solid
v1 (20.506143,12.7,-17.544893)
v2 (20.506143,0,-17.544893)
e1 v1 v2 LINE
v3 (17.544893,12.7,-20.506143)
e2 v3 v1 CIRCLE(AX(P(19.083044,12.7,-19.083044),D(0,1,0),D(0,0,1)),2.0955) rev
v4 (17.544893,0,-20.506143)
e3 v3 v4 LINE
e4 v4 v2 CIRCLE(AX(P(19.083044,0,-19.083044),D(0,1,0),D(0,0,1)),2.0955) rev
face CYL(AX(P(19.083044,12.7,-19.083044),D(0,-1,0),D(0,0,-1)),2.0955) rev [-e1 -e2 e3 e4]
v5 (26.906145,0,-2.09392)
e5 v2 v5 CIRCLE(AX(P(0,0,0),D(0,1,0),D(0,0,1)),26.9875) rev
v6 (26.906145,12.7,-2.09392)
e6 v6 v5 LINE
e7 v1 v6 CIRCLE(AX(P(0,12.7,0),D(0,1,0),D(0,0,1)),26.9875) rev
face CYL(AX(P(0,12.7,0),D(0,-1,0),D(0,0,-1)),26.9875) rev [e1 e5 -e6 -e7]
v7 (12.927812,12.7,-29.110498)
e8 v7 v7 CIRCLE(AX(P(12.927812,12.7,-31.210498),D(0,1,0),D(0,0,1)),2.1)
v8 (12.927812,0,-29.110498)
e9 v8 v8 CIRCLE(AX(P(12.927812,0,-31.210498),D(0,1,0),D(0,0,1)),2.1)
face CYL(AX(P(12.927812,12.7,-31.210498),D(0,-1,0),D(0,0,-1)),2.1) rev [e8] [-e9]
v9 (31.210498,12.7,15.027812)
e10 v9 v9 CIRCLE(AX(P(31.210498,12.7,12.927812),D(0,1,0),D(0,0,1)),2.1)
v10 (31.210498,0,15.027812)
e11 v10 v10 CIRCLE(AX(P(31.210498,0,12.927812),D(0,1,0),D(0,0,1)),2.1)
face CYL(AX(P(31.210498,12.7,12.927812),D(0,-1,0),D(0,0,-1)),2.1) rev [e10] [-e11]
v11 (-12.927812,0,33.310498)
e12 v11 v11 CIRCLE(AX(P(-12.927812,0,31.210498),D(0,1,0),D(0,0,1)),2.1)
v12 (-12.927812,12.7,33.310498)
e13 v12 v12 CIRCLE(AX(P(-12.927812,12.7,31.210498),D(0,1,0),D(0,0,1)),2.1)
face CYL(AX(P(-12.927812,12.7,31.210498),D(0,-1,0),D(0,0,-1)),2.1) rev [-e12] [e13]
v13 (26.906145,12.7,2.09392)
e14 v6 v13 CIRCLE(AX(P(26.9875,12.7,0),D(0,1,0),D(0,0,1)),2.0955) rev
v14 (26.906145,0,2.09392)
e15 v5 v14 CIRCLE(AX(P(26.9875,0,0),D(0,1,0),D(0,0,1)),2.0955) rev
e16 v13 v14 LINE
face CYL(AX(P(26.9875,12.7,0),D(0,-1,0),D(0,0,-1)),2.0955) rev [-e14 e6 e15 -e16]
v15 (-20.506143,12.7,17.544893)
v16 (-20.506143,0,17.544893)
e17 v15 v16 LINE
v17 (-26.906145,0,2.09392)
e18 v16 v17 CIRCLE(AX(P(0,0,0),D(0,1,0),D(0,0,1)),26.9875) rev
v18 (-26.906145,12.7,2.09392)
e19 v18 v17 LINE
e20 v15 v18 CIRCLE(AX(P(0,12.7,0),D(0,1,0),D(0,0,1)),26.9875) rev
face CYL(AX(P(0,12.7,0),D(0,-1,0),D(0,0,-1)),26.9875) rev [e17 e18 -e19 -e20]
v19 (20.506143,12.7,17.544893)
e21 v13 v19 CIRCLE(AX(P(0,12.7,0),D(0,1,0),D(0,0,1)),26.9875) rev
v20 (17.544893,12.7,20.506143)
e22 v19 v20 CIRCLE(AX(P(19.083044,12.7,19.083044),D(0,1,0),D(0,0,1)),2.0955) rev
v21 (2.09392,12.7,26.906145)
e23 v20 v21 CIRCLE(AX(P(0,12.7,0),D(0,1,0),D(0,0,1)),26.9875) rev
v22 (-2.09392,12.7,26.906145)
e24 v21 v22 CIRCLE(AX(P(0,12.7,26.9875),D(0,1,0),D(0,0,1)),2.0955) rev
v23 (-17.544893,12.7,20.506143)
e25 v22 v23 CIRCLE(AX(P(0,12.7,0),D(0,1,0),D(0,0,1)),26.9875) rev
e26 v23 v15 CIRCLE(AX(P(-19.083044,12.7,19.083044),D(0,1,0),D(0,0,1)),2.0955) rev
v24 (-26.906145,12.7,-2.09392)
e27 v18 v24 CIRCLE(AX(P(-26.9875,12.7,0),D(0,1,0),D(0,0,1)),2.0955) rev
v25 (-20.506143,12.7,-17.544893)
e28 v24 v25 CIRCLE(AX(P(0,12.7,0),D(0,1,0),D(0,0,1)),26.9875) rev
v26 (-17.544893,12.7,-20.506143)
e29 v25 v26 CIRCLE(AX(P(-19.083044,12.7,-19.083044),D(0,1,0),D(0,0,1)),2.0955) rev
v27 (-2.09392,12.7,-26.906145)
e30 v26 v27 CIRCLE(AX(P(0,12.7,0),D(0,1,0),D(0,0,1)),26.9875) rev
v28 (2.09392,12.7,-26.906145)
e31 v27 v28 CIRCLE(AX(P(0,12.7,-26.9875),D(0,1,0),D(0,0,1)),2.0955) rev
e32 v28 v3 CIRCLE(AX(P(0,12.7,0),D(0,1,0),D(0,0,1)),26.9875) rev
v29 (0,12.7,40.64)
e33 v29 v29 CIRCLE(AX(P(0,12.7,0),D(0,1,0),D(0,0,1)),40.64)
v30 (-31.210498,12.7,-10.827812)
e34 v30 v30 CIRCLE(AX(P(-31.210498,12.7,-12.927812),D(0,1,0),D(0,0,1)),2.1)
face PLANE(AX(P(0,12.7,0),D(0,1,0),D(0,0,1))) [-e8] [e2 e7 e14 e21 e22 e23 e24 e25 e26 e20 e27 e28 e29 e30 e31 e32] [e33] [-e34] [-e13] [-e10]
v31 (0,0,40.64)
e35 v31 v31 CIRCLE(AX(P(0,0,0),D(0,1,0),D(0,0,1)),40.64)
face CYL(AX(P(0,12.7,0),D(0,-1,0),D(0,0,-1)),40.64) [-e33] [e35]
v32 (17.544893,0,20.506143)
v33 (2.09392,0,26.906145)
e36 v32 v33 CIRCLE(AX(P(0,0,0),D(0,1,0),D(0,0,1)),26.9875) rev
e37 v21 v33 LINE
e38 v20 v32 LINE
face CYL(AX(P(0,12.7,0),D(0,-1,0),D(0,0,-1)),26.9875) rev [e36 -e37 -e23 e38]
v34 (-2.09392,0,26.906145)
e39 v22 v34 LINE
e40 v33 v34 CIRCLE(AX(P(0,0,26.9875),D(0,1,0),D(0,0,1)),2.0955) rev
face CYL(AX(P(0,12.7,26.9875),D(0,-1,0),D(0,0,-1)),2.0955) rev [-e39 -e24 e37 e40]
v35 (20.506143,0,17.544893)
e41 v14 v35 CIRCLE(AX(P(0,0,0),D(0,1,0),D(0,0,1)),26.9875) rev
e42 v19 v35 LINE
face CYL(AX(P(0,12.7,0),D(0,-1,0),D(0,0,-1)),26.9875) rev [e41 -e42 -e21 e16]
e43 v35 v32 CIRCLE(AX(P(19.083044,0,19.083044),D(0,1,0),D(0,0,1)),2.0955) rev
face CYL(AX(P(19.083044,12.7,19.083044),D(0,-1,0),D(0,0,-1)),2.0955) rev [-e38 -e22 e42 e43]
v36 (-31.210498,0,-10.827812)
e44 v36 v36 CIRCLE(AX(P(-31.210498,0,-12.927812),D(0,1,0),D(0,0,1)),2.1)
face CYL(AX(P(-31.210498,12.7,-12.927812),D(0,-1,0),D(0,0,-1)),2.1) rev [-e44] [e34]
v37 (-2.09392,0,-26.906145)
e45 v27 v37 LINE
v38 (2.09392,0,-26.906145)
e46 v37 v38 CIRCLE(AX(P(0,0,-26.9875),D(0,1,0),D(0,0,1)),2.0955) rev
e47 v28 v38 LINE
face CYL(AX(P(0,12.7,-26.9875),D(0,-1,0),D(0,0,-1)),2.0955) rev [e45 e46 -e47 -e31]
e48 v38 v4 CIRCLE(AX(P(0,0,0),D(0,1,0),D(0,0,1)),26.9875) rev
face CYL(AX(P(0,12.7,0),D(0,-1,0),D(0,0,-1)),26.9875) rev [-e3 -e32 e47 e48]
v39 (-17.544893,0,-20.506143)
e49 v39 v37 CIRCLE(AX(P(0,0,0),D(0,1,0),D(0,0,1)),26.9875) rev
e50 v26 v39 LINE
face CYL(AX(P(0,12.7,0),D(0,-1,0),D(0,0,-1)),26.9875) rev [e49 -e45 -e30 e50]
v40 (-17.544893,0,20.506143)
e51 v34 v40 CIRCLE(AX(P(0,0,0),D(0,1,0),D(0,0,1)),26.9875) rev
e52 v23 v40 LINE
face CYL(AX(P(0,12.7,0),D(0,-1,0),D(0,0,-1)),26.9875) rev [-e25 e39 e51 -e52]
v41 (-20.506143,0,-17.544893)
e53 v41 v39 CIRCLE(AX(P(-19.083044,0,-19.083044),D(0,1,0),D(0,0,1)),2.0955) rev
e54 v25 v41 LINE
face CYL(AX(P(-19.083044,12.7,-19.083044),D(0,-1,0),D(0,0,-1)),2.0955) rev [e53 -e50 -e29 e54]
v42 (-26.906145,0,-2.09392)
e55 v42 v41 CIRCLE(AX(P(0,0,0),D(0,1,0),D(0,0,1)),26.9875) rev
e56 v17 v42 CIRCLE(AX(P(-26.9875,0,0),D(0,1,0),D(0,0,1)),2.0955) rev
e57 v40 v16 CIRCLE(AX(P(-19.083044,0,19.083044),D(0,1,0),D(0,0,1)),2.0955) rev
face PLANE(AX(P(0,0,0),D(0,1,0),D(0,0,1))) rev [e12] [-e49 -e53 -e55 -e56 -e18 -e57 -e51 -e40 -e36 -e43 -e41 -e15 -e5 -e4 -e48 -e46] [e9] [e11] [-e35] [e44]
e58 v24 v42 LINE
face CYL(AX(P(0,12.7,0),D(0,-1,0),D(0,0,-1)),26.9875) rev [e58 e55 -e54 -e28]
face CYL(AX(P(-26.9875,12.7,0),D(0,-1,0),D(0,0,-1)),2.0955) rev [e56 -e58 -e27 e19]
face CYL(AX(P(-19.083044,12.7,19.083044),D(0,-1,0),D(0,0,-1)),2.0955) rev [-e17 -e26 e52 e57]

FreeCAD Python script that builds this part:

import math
import FreeCAD as App
import Part
import Sketcher
Q = App.Units.Quantity

doc = App.newDocument("Part")
body = doc.addObject("PartDesign::Body", "Body")

# Sketch on XZ plane
sketch1 = doc.addObject("Sketcher::SketchObject", "Sketch")
body.addObject(sketch1)
sketch1.AttachmentSupport = (doc.XZ_Plane, [""])
sketch1.MapMode = "FlatFace"
sketch1.addGeometry([
    Part.Circle(App.Vector(0, 0, 0), App.Vector(0, 0, 1), 40.6),  # 0
    Part.Circle(App.Vector(-31.2, -12.9, 0), App.Vector(0, 0, 1), 2.1),  # 1
    Part.Circle(App.Vector(-12.9, 31.2, 0), App.Vector(0, 0, 1), 2.1),  # 2
    Part.Circle(App.Vector(12.9, -31.2, 0), App.Vector(0, 0, 1), 2.1),  # 3
    Part.ArcOfCircle(Part.Circle(App.Vector(0, 0, 0), App.Vector(0, 0, 1), 27), math.radians(-176), math.radians(-139)),  # 4
    Part.ArcOfCircle(Part.Circle(App.Vector(-19.1, -19.1, 0), App.Vector(0, 0, 1), 2.1), math.radians(133), math.radians(317)),  # 5
    Part.ArcOfCircle(Part.Circle(App.Vector(0, 0, 0), App.Vector(0, 0, 1), 27), math.radians(-131), math.radians(-94)),  # 6
    Part.ArcOfCircle(Part.Circle(App.Vector(0, -27, 0), App.Vector(0, 0, 1), 2.1), math.radians(178), math.radians(362)),  # 7
    Part.ArcOfCircle(Part.Circle(App.Vector(0, 0, 0), App.Vector(0, 0, 1), 27), math.radians(-86), math.radians(-49)),  # 8
    Part.ArcOfCircle(Part.Circle(App.Vector(19.1, -19.1, 0), App.Vector(0, 0, 1), 2.1), math.radians(-137), math.radians(47)),  # 9
    Part.ArcOfCircle(Part.Circle(App.Vector(0, 0, 0), App.Vector(0, 0, 1), 27), math.radians(-41), math.radians(-4)),  # 10
    Part.ArcOfCircle(Part.Circle(App.Vector(27, 0, 0), App.Vector(0, 0, 1), 2.1), math.radians(-92), math.radians(92)),  # 11
    Part.ArcOfCircle(Part.Circle(App.Vector(0, 0, 0), App.Vector(0, 0, 1), 27), math.radians(4), math.radians(41)),  # 12
    Part.ArcOfCircle(Part.Circle(App.Vector(19.1, 19.1, 0), App.Vector(0, 0, 1), 2.1), math.radians(-47), math.radians(137)),  # 13
    Part.ArcOfCircle(Part.Circle(App.Vector(0, 0, 0), App.Vector(0, 0, 1), 27), math.radians(49), math.radians(86)),  # 14
    Part.ArcOfCircle(Part.Circle(App.Vector(0, 27, 0), App.Vector(0, 0, 1), 2.1), math.radians(-2), math.radians(182)),  # 15
    Part.ArcOfCircle(Part.Circle(App.Vector(0, 0, 0), App.Vector(0, 0, 1), 27), math.radians(94), math.radians(131)),  # 16
    Part.ArcOfCircle(Part.Circle(App.Vector(-19.1, 19.1, 0), App.Vector(0, 0, 1), 2.1), math.radians(43), math.radians(227)),  # 17
    Part.ArcOfCircle(Part.Circle(App.Vector(0, 0, 0), App.Vector(0, 0, 1), 27), math.radians(139), math.radians(176)),  # 18
    Part.ArcOfCircle(Part.Circle(App.Vector(-27, 0, 0), App.Vector(0, 0, 1), 2.1), math.radians(88), math.radians(272)),  # 19
    Part.Circle(App.Vector(31.2, 12.9, 0), App.Vector(0, 0, 1), 2.1),  # 20
], False)
sketch1.addConstraint([
    Sketcher.Constraint("Coincident", 4, 2, 5, 1),
    Sketcher.Constraint("Coincident", 5, 2, 6, 1),
    Sketcher.Constraint("Coincident", 6, 2, 7, 1),
    Sketcher.Constraint("Coincident", 7, 2, 8, 1),
    Sketcher.Constraint("Coincident", 8, 2, 9, 1),
    Sketcher.Constraint("Coincident", 9, 2, 10, 1),
    Sketcher.Constraint("Coincident", 10, 2, 11, 1),
    Sketcher.Constraint("Coincident", 11, 2, 12, 1),
    Sketcher.Constraint("Coincident", 12, 2, 13, 1),
    Sketcher.Constraint("Coincident", 13, 2, 14, 1),
    Sketcher.Constraint("Coincident", 14, 2, 15, 1),
    Sketcher.Constraint("Coincident", 15, 2, 16, 1),
    Sketcher.Constraint("Coincident", 16, 2, 17, 1),
    Sketcher.Constraint("Coincident", 17, 2, 18, 1),
    Sketcher.Constraint("Coincident", 18, 2, 19, 1),
    Sketcher.Constraint("Coincident", 19, 2, 4, 1),
    Sketcher.Constraint("Coincident", 0, 3, -1, 1),
    Sketcher.Constraint("Coincident", 4, 3, -1, 1),
    Sketcher.Constraint("Coincident", 6, 3, -1, 1),
    Sketcher.Constraint("Coincident", 8, 3, -1, 1),
    Sketcher.Constraint("Coincident", 10, 3, -1, 1),
    Sketcher.Constraint("Coincident", 12, 3, -1, 1),
    Sketcher.Constraint("Coincident", 14, 3, -1, 1),
    Sketcher.Constraint("Coincident", 16, 3, -1, 1),
    Sketcher.Constraint("Coincident", 18, 3, -1, 1),
    Sketcher.Constraint("Equal", 1, 2),
    Sketcher.Constraint("Equal", 2, 3),
    Sketcher.Constraint("Equal", 4, 6),
    Sketcher.Constraint("Equal", 5, 7),
    Sketcher.Constraint("Equal", 6, 8),
    Sketcher.Constraint("Equal", 7, 9),
    Sketcher.Constraint("Equal", 8, 10),
    Sketcher.Constraint("Equal", 9, 11),
    Sketcher.Constraint("Equal", 10, 12),
    Sketcher.Constraint("Equal", 11, 13),
    Sketcher.Constraint("Equal", 12, 14),
    Sketcher.Constraint("Equal", 13, 15),
    Sketcher.Constraint("Equal", 14, 16),
    Sketcher.Constraint("Equal", 15, 17),
    Sketcher.Constraint("Equal", 16, 18),
    Sketcher.Constraint("Equal", 17, 19),
    Sketcher.Constraint("Equal", 3, 20),
    Sketcher.Constraint("Symmetric", 2, 3, 3, 3, -1, 1),
    Sketcher.Constraint("Symmetric", 5, 3, 13, 3, -1, 1),
    Sketcher.Constraint("Symmetric", 7, 3, 15, 3, -1, 1),
    Sketcher.Constraint("Symmetric", 9, 3, 17, 3, -1, 1),
    Sketcher.Constraint("Symmetric", 11, 3, 19, 3, -1, 1),
    Sketcher.Constraint("Symmetric", 1, 3, 20, 3, -1, 1),
    Sketcher.Constraint("Symmetric", 5, 3, 9, 3, -2),
    Sketcher.Constraint("PointOnObject", 7, 3, -2),
    Sketcher.Constraint("PointOnObject", 11, 3, -1),
    Sketcher.Constraint("Diameter", 0, Q("3.2 in")),
    Sketcher.Constraint("Radius", 4, Q("1.0625 in")),
    Sketcher.Constraint("Radius", 5, Q("0.0825 in")),
    Sketcher.Constraint("Diameter", 1, 4.2),
    Sketcher.Constraint("DistanceY", 7, 3, -1, 1, Q("1.0625 in")),
    Sketcher.Constraint("DistanceX", -1, 1, 11, 3, Q("1.0625 in")),
    Sketcher.Constraint("DistanceX", 1, 3, -1, 1, 31.210498),
    Sketcher.Constraint("DistanceY", -1, 1, 2, 3, 31.210498),
    Sketcher.Constraint("DistanceX", 4, 2, 5, 3, 1.423099),
    Sketcher.Constraint("DistanceY", 5, 2, 5, 3, 1.423099),
    Sketcher.Constraint("DistanceY", 1, 3, -1, 1, 12.927812),
    Sketcher.Constraint("DistanceX", 2, 3, -1, 1, 12.927812),
])
pad1 = doc.addObject("PartDesign::Pad", "Pad")
body.addObject(pad1)
pad1.Profile = sketch1
pad1.Length = Q("0.5 in")
pad1.Reversed = True

doc.recompute()
